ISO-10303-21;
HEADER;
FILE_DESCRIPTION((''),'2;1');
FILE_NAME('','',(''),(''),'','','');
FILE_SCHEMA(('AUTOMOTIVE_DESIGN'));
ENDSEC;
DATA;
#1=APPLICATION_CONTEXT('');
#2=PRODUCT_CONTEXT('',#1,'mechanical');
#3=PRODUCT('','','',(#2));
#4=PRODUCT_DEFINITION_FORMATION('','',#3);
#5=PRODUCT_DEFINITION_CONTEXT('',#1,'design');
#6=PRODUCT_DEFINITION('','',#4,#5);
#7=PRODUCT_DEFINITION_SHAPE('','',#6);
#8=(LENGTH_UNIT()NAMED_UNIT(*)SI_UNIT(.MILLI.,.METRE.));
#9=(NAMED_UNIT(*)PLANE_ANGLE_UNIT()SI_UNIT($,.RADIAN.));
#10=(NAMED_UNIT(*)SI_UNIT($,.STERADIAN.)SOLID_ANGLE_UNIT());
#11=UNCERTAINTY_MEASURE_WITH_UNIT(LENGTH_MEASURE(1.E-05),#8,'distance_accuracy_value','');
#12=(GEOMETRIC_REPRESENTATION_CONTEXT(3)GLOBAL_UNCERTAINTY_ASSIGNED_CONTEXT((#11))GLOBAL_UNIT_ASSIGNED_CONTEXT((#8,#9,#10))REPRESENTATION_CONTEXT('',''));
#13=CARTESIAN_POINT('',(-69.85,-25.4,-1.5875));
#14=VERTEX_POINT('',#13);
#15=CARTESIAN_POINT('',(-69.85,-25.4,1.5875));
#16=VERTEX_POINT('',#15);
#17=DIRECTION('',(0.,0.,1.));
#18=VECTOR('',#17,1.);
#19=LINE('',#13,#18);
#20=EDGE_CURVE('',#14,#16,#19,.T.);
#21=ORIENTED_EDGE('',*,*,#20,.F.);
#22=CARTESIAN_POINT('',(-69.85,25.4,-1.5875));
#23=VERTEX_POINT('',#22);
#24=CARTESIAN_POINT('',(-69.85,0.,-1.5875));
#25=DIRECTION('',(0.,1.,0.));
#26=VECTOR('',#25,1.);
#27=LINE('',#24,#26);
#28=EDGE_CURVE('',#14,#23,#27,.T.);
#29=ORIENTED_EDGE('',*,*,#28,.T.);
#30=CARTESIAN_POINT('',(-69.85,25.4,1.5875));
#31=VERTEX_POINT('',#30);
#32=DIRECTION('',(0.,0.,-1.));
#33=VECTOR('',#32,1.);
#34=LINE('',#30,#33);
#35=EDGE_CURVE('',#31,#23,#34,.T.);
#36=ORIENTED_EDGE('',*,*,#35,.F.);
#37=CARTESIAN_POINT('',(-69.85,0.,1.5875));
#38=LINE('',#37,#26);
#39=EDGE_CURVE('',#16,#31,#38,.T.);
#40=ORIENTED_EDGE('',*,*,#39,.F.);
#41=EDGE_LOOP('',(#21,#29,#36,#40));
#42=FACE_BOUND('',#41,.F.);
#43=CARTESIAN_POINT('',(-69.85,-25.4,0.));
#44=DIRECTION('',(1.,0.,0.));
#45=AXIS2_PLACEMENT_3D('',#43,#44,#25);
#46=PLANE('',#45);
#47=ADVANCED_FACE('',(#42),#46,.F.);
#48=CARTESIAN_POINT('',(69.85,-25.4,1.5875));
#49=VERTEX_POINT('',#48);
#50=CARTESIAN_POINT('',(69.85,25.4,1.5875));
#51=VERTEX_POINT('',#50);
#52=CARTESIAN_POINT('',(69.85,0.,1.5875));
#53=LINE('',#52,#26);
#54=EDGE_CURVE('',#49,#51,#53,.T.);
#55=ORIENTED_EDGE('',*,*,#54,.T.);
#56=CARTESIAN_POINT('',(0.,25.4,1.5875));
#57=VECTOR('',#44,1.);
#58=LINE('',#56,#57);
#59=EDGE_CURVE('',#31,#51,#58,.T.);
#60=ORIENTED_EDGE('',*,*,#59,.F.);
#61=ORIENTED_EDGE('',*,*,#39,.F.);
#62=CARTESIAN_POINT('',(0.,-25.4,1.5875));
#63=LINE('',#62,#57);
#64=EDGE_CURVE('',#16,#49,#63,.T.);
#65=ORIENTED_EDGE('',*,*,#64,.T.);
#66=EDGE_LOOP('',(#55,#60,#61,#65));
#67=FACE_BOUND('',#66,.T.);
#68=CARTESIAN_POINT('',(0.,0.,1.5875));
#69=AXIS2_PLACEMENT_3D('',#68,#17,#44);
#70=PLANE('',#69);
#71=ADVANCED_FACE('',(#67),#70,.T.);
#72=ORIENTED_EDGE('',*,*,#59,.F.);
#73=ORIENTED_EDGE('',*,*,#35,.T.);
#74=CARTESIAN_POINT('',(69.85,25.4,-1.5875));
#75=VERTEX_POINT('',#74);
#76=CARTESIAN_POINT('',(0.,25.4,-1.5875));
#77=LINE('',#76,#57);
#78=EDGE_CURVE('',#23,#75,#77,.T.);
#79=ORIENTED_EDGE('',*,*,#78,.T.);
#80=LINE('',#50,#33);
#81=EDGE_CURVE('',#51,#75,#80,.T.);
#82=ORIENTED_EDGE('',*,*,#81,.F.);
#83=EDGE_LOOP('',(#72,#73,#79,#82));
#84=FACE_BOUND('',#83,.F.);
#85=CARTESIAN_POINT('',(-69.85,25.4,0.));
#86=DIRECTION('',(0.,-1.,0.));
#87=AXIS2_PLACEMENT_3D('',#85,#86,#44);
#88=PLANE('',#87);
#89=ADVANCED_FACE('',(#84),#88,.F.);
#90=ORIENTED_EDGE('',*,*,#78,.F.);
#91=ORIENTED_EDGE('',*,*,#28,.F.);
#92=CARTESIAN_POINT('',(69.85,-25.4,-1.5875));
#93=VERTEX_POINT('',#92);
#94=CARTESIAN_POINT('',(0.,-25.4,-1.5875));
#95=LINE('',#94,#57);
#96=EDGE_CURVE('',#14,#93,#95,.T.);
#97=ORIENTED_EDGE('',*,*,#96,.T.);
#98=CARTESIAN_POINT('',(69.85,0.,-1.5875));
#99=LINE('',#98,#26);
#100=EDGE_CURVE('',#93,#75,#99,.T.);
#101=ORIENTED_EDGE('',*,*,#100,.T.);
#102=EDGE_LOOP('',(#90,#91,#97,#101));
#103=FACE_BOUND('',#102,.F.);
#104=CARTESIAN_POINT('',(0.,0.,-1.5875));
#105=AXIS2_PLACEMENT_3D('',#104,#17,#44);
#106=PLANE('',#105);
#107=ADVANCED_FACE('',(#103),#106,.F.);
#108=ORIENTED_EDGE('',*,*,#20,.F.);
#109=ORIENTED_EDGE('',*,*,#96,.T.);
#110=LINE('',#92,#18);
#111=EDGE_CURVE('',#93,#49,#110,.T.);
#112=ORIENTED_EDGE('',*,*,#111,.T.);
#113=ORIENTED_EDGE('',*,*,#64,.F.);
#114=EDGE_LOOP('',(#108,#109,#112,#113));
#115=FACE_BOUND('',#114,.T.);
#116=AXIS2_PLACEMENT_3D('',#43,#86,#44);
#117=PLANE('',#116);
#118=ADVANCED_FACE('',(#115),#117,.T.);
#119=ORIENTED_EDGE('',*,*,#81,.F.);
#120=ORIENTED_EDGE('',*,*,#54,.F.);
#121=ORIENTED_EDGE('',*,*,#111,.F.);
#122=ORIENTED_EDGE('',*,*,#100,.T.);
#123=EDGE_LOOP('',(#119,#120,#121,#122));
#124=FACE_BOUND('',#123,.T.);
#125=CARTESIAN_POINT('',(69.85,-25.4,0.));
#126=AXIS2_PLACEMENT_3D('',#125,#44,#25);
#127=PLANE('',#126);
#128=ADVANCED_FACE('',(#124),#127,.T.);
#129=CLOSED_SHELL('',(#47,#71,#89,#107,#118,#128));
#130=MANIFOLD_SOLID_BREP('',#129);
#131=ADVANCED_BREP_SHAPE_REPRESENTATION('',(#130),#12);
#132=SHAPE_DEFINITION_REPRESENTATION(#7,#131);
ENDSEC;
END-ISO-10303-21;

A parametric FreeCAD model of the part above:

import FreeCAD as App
import Part
import Sketcher

V = App.Vector
Q = App.Units.Quantity


def add_polygon(sketch, points):
    """Adds a closed chain of lines whose ends are joined by coincident constraints."""
    first, n = sketch.GeometryCount, len(points)
    for a, b in zip(points, points[1:] + points[:1]):
        sketch.addGeometry(Part.LineSegment(App.Vector(*a, 0), App.Vector(*b, 0)), False)
    for i in range(n):
        sketch.addConstraint(Sketcher.Constraint("Coincident", first + i, 2, first + (i + 1) % n, 1))

doc = App.newDocument("Part")
body = doc.addObject("PartDesign::Body", "Body")

sketch1 = body.newObject("Sketcher::SketchObject", "Sketch")
sketch1.AttachmentSupport = (doc.getObject("XY_Plane"), [""])
sketch1.MapMode = "FlatFace"
add_polygon(sketch1, [(-70, 25), (-70, -25), (70, -25), (70, 25)])
sketch1.addConstraint(Sketcher.Constraint("Vertical", 0))
sketch1.addConstraint(Sketcher.Constraint("Horizontal", 1))
sketch1.addConstraint(Sketcher.Constraint("Vertical", 2))
sketch1.addConstraint(Sketcher.Constraint("Horizontal", 3))
sketch1.addConstraint(Sketcher.Constraint("Symmetric", 0, 2, 2, 2, -1, 1))
sketch1.addConstraint(Sketcher.Constraint("DistanceY", 0, 2, 0, 1, Q("2 in")))
sketch1.addConstraint(Sketcher.Constraint("DistanceX", 1, 1, 1, 2, Q("5.5 in")))
pad1 = body.newObject("PartDesign::Pad", "Pad")
pad1.Profile = sketch1
pad1.Length = Q("0.125 in")
pad1.Midplane = True

doc.recompute()
